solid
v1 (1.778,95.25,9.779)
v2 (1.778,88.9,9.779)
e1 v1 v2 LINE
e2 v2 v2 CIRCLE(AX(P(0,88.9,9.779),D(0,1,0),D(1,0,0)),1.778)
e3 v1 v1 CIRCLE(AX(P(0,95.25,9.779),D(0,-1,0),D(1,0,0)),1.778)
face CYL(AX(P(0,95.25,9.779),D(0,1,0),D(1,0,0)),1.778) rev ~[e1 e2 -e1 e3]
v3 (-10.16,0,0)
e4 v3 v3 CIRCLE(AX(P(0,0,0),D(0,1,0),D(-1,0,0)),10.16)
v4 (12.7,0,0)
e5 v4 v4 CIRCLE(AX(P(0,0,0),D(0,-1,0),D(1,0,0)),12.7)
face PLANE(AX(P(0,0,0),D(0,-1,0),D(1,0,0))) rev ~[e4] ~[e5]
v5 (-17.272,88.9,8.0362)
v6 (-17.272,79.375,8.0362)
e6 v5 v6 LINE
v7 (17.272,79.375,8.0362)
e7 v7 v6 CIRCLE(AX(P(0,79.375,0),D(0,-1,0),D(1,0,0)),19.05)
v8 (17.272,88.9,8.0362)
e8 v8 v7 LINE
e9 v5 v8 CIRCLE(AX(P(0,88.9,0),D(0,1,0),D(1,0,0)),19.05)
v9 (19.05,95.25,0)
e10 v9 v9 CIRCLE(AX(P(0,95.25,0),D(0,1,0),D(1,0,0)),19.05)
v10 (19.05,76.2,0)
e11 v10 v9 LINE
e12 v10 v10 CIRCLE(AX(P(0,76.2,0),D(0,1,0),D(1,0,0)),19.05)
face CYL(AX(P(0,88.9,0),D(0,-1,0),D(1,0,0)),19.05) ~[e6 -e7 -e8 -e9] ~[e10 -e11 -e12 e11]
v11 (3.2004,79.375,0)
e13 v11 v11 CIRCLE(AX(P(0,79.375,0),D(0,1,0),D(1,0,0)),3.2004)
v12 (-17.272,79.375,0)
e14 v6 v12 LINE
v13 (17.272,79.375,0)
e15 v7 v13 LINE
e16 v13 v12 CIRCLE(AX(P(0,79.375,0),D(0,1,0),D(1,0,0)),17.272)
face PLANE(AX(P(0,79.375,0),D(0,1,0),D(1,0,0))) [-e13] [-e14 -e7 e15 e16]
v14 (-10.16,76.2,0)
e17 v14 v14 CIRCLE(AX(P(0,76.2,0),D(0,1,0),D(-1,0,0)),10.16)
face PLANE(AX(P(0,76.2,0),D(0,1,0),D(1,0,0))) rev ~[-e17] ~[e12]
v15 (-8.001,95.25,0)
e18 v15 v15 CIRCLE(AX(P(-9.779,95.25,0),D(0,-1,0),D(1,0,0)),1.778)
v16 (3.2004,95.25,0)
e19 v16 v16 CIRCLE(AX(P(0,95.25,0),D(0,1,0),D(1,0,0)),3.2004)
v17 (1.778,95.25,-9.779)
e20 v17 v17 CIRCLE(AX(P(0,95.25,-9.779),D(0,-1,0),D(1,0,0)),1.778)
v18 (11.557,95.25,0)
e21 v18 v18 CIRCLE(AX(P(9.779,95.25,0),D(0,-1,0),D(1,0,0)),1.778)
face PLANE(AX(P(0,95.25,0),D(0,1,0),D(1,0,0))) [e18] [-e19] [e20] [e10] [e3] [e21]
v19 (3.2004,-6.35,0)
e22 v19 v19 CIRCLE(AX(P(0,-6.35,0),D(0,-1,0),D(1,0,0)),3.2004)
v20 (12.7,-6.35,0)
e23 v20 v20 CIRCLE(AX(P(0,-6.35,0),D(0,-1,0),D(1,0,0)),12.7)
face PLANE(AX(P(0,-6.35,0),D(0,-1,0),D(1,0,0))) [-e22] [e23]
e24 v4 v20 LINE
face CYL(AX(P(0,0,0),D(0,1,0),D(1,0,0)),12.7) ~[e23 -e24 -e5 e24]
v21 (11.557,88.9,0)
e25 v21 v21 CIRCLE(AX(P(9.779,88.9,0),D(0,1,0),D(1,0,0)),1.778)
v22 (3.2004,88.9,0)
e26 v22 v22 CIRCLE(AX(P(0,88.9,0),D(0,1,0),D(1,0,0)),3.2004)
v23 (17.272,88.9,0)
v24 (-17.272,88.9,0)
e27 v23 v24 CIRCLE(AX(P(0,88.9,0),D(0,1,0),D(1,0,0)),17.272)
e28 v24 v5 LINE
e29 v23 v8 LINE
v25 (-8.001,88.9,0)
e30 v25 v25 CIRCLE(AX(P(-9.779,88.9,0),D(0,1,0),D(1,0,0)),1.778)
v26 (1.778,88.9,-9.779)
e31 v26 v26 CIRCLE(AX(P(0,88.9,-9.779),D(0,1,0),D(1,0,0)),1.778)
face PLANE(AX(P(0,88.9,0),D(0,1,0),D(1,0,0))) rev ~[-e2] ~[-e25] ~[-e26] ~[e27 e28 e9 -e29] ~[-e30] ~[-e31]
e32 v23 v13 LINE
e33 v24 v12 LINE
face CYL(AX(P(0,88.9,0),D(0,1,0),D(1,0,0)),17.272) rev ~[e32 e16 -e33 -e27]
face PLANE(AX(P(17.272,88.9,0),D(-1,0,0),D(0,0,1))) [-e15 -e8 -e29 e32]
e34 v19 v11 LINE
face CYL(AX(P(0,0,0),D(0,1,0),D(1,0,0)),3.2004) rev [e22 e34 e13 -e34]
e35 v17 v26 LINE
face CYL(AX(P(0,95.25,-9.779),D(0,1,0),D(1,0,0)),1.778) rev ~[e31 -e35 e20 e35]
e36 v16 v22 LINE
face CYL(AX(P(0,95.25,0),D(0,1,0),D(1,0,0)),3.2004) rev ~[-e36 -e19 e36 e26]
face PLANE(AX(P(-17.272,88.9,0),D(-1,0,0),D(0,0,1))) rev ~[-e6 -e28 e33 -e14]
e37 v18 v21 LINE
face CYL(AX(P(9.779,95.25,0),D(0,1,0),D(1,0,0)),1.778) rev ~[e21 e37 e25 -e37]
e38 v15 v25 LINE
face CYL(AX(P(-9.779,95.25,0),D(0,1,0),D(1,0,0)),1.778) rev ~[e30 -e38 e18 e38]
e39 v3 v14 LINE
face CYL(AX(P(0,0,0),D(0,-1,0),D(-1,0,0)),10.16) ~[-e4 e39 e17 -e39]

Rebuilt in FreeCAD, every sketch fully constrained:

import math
import FreeCAD as App
import Part
import Sketcher

V = App.Vector
Q = App.Units.Quantity

doc = App.newDocument("Part")
body = doc.addObject("PartDesign::Body", "Body")

# Sketch on XZ plane
sketch1 = body.newObject("Sketcher::SketchObject", "Sketch")
sketch1.AttachmentSupport = (doc.getObject("XZ_Plane"), [""])
sketch1.MapMode = "FlatFace"
sketch1.addGeometry(Part.Circle(V(0, 0, 0), V(0, 0, 1), 10.16), False)
sketch1.addConstraint([
    Sketcher.Constraint("Coincident", 0, 3, -1, 1),
    Sketcher.Constraint("Diameter", 0, Q("0.8 in")),
])
pad1 = body.newObject("PartDesign::Pad", "Pad")
pad1.Profile = sketch1
pad1.Length = Q("3 in")
pad1.Reversed = True

# Sketch on XZ plane
sketch2 = body.newObject("Sketcher::SketchObject", "Sketch001")
sketch2.AttachmentSupport = (doc.getObject("XZ_Plane"), [""])
sketch2.MapMode = "FlatFace"
sketch2.AttachmentOffset = App.Placement(V(0, 0, -3 * 25.4), App.Rotation())
sketch2.addGeometry(Part.Circle(V(0, 0, 0), V(0, 0, 1), 19.05), False)
sketch2.addConstraint([
    Sketcher.Constraint("Coincident", 0, 3, -1, 1),
    Sketcher.Constraint("Diameter", 0, Q("1.5 in")),
])
pad2 = body.newObject("PartDesign::Pad", "Pad001")
pad2.Profile = sketch2
pad2.Length = Q("0.5 in")
pad2.Reversed = True

# Sketch on XZ plane
sketch3 = body.newObject("Sketcher::SketchObject", "Sketch002")
sketch3.AttachmentSupport = (doc.getObject("XZ_Plane"), [""])
sketch3.MapMode = "FlatFace"
sketch3.AttachmentOffset = App.Placement(V(0, 0, -3.5 * 25.4), App.Rotation())
sketch3.addGeometry([
    Part.ArcOfCircle(Part.Circle(V(0, 0, 0), V(0, 0, 1), 17.272), math.radians(180), math.radians(360)),
    Part.LineSegment(V(-17.272, 0, 0), V(-17.272, 33.241, 0)),
    Part.LineSegment(V(-17.272, 33.241, 0), V(17.272, 33.241, 0)),
    Part.LineSegment(V(17.272, 33.241, 0), V(17.272, 0, 0)),
], False)
sketch3.addConstraint([
    Sketcher.Constraint("Tangent", 0, 1, 1, 1),
    Sketcher.Constraint("Coincident", 1, 2, 2, 1),
    Sketcher.Constraint("Coincident", 2, 2, 3, 1),
    Sketcher.Constraint("Tangent", 3, 2, 0, 2),
    Sketcher.Constraint("Vertical", 1),
    Sketcher.Constraint("Horizontal", 2),
    Sketcher.Constraint("Vertical", 3),
    Sketcher.Constraint("Coincident", 0, 3, -1, 1),
    Sketcher.Constraint("Radius", 0, Q("0.68 in")),
    Sketcher.Constraint("DistanceY", 1, 1, 1, 2, Q("1.3087 in")),
])
pocket1 = body.newObject("PartDesign::Pocket", "Pocket")
pocket1.Profile = sketch3
pocket1.Length = Q("0.375 in")
pocket1.Reversed = True

# Sketch on XZ plane
sketch4 = body.newObject("Sketcher::SketchObject", "Sketch003")
sketch4.AttachmentSupport = (doc.getObject("XZ_Plane"), [""])
sketch4.MapMode = "FlatFace"
sketch4.AttachmentOffset = App.Placement(V(0, 0, -3.5 * 25.4), App.Rotation())
sketch4.addGeometry(Part.Circle(V(0, 0, 0), V(0, 0, 1), 19.05), False)
sketch4.addConstraint([
    Sketcher.Constraint("Coincident", 0, 3, -1, 1),
    Sketcher.Constraint("Diameter", 0, Q("1.5 in")),
])
pad3 = body.newObject("PartDesign::Pad", "Pad002")
pad3.Profile = sketch4
pad3.Length = Q("0.25 in")
pad3.Reversed = True

# Sketch on XZ plane
sketch5 = body.newObject("Sketcher::SketchObject", "Sketch004")
sketch5.AttachmentSupport = (doc.getObject("XZ_Plane"), [""])
sketch5.MapMode = "FlatFace"
sketch5.AttachmentOffset = App.Placement(V(0, 0, -3.75 * 25.4), App.Rotation())
sketch5.addGeometry([
    Part.Circle(V(9.779, 0, 0), V(0, 0, 1), 1.778),
    Part.Circle(V(0, -9.779, 0), V(0, 0, 1), 1.778),
    Part.Circle(V(0, 9.779, 0), V(0, 0, 1), 1.778),
    Part.Circle(V(-9.779, 0, 0), V(0, 0, 1), 1.778),
], False)
sketch5.addConstraint([
    Sketcher.Constraint("Equal", 0, 1),
    Sketcher.Constraint("Equal", 1, 2),
    Sketcher.Constraint("Equal", 2, 3),
    Sketcher.Constraint("Symmetric", 1, 3, 2, 3, -1, 1),
    Sketcher.Constraint("Symmetric", 0, 3, 3, 3, -1, 1),
    Sketcher.Constraint("PointOnObject", 0, 3, -1),
    Sketcher.Constraint("PointOnObject", 1, 3, -2),
    Sketcher.Constraint("Diameter", 0, Q("0.14 in")),
    Sketcher.Constraint("DistanceY", 1, 3, 2, 3, Q("0.77 in")),
    Sketcher.Constraint("DistanceX", 3, 3, 0, 3, Q("0.77 in")),
])
pocket2 = body.newObject("PartDesign::Pocket", "Pocket001")
pocket2.Profile = sketch5
pocket2.Length = Q("0.25 in")
pocket2.Reversed = True

# Sketch on XZ plane
sketch6 = body.newObject("Sketcher::SketchObject", "Sketch005")
sketch6.AttachmentSupport = (doc.getObject("XZ_Plane"), [""])
sketch6.MapMode = "FlatFace"
sketch6.AttachmentOffset = App.Placement(V(0, 0, -3.75 * 25.4), App.Rotation())
sketch6.addGeometry(Part.Circle(V(0, 0, 0), V(0, 0, 1), 3.2004), False)
sketch6.addConstraint([
    Sketcher.Constraint("Coincident", 0, 3, -1, 1),
    Sketcher.Constraint("Diameter", 0, Q("0.252 in")),
])
pocket3 = body.newObject("PartDesign::Pocket", "Pocket002")
pocket3.Profile = sketch6
pocket3.Type = "ThroughAll"
pocket3.Reversed = True

# Sketch on XZ plane
sketch7 = body.newObject("Sketcher::SketchObject", "Sketch006")
sketch7.AttachmentSupport = (doc.getObject("XZ_Plane"), [""])
sketch7.MapMode = "FlatFace"
sketch7.addGeometry([
    Part.Circle(V(0, 0, 0), V(0, 0, 1), 12.7),
    Part.Circle(V(0, 0, 0), V(0, 0, 1), 3.2004),
], False)
sketch7.addConstraint([
    Sketcher.Constraint("Coincident", 0, 3, -1, 1),
    Sketcher.Constraint("Coincident", 1, 3, -1, 1),
    Sketcher.Constraint("Diameter", 0, Q("1 in")),
    Sketcher.Constraint("Diameter", 1, Q("0.252 in")),
])
pad4 = body.newObject("PartDesign::Pad", "Pad003")
pad4.Profile = sketch7
pad4.Length = Q("0.25 in")

doc.recompute()
